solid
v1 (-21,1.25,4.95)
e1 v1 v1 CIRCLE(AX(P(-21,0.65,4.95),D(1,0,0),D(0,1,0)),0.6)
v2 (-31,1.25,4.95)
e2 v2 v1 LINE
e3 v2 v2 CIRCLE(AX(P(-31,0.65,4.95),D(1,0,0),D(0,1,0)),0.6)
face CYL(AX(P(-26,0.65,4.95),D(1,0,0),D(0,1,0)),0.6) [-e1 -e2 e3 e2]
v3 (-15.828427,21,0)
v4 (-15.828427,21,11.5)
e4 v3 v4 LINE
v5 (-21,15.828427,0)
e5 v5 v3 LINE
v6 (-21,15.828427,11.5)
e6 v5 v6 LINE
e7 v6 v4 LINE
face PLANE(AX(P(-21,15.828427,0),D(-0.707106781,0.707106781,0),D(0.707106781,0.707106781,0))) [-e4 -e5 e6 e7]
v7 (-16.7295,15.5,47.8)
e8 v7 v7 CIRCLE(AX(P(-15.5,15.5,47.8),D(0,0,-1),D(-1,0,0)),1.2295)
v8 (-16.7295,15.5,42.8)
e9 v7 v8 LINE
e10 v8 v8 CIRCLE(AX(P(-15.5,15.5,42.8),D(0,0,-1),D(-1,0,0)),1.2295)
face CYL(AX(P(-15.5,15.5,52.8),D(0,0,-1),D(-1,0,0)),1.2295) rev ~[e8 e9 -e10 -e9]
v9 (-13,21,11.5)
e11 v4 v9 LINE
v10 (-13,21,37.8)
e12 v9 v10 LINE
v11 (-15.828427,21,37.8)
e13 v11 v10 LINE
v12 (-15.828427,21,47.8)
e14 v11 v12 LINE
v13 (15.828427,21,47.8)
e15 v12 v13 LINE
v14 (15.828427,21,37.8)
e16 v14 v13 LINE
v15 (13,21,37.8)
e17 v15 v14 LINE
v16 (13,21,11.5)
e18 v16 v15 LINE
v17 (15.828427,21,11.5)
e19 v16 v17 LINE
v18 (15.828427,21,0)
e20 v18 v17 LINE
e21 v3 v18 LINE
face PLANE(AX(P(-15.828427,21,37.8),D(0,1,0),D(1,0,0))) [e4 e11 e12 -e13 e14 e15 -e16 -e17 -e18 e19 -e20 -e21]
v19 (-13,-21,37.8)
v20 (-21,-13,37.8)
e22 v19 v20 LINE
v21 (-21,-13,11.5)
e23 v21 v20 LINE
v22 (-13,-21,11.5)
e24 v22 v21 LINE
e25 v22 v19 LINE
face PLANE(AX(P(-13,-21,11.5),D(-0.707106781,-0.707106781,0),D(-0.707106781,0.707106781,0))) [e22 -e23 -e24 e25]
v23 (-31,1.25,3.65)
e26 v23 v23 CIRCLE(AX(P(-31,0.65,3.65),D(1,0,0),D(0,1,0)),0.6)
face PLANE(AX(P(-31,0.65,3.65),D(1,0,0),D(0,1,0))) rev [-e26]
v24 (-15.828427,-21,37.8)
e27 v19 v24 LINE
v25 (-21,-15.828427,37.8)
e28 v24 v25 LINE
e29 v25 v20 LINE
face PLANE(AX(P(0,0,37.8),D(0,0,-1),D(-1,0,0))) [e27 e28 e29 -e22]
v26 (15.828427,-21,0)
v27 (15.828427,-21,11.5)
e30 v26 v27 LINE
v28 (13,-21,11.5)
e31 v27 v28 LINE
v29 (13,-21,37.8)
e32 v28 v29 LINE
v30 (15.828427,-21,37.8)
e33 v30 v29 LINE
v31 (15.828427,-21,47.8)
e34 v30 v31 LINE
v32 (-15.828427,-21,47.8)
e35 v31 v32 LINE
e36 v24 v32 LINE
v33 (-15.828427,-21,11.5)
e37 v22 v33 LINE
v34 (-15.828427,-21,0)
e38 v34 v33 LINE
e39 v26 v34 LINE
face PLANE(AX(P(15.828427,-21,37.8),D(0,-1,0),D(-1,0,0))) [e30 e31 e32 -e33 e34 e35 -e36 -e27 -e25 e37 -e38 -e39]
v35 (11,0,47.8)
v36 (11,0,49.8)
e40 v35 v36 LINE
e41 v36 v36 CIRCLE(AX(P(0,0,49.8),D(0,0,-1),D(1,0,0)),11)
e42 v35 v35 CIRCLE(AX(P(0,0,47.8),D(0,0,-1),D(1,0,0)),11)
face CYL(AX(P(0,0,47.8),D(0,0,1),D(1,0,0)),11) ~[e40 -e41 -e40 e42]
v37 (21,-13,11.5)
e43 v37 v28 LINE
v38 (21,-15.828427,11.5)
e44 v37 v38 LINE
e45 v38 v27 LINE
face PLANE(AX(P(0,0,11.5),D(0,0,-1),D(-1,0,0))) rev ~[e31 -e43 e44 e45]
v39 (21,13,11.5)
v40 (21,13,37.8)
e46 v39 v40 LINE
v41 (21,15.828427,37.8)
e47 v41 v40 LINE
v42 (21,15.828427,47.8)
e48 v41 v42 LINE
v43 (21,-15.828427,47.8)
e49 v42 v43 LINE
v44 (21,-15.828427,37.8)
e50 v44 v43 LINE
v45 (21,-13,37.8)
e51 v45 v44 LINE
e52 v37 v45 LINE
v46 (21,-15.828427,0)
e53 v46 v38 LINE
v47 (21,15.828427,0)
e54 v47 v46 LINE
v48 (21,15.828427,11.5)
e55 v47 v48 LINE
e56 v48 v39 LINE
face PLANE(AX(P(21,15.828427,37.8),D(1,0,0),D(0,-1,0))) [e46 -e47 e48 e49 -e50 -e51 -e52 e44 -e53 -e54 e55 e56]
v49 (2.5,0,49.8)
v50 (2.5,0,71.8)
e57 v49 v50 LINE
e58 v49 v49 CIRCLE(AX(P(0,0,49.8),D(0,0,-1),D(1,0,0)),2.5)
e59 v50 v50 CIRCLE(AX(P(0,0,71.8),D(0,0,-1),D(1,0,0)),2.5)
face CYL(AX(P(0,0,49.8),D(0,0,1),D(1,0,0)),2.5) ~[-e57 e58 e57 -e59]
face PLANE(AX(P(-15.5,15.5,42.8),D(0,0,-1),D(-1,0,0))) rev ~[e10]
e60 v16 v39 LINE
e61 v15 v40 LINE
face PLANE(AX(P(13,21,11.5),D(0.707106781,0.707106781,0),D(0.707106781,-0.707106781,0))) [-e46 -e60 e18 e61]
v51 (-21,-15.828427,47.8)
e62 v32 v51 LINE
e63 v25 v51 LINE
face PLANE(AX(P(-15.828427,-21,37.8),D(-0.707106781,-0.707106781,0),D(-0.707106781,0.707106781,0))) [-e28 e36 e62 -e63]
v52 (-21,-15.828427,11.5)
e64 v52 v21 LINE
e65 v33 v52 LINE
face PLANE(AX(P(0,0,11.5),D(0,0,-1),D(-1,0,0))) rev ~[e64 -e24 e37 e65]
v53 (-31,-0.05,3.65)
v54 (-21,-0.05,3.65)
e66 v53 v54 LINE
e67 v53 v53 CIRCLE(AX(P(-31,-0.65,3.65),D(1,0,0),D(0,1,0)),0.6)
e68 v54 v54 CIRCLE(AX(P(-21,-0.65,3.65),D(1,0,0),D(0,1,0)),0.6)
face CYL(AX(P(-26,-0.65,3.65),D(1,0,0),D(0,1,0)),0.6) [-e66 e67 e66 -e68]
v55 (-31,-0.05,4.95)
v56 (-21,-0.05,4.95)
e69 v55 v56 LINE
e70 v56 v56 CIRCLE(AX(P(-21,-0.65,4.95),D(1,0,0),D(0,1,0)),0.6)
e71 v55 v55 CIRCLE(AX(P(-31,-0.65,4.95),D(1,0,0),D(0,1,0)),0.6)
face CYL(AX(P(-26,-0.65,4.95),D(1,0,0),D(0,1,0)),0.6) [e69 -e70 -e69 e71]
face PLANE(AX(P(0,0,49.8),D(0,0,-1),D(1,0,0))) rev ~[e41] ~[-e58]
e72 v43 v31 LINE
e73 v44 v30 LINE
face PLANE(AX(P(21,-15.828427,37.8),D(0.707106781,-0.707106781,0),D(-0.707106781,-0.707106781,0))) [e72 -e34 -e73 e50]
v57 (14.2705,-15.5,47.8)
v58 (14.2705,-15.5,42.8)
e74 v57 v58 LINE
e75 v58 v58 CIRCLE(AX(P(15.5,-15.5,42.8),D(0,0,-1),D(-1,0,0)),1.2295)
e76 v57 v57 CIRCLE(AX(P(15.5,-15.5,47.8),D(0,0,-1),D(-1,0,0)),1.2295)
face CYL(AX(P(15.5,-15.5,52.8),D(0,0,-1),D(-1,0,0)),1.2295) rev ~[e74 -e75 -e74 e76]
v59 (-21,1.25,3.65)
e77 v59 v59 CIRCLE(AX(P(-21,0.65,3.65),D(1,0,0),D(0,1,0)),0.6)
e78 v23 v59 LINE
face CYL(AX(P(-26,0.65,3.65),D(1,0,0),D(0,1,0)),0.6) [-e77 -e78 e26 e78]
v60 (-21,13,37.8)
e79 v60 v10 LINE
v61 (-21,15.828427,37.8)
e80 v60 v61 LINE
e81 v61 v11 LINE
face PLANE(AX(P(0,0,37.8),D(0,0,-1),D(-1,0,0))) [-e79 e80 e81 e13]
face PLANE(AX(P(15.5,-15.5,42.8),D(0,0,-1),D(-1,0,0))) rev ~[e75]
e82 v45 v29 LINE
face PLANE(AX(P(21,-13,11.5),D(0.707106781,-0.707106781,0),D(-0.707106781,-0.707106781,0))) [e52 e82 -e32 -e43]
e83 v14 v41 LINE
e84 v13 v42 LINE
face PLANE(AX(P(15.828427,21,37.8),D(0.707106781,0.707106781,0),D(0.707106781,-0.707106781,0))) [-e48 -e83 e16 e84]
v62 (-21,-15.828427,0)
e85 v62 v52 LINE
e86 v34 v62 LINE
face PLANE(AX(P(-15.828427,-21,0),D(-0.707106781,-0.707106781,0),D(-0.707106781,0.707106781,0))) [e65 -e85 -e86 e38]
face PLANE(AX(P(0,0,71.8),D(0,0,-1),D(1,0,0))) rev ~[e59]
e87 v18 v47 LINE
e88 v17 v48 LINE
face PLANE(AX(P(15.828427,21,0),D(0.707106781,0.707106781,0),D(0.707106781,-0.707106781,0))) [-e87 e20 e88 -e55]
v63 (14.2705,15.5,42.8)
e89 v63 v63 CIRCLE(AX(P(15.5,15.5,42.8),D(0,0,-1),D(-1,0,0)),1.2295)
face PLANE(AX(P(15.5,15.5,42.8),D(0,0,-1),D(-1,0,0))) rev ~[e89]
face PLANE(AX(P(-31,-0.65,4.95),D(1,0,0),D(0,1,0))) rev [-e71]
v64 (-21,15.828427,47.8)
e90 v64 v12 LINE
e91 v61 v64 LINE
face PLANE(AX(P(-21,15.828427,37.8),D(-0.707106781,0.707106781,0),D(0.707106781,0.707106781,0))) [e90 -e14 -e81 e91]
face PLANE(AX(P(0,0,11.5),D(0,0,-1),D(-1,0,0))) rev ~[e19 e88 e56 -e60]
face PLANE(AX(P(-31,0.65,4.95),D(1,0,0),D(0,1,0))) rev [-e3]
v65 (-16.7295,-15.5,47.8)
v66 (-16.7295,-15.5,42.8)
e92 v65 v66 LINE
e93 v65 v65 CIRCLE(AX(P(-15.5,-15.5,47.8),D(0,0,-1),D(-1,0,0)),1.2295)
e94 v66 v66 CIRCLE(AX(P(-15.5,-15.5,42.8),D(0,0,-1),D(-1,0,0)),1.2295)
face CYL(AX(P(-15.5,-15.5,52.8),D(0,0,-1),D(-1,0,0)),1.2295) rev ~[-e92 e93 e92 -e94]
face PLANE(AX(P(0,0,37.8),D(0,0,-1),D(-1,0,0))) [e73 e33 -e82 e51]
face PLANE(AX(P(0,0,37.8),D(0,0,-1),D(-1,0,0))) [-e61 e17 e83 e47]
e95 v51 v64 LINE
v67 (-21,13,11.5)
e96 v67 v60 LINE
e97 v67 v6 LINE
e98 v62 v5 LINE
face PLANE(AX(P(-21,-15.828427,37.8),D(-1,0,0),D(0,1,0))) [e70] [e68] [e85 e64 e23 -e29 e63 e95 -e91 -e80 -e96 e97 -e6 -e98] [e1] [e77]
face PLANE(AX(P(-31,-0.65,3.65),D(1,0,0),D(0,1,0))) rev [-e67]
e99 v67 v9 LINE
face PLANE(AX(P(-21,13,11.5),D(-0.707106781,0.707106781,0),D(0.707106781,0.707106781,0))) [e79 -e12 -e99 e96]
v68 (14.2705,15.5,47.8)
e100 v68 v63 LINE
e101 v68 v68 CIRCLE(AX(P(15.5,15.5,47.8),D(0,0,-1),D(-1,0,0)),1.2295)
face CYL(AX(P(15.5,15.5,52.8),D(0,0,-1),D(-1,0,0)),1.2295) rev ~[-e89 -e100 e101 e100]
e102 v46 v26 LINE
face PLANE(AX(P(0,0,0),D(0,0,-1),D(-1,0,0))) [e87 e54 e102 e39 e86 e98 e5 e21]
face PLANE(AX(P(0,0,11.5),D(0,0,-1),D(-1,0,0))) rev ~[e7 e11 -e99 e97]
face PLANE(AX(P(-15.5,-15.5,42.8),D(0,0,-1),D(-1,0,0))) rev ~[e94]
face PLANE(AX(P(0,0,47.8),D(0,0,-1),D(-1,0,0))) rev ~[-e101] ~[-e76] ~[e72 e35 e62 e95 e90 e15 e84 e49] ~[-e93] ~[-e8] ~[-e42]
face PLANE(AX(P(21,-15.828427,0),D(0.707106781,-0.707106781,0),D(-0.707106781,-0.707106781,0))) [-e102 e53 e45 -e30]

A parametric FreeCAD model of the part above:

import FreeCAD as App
import Part
import Sketcher
from FreeCAD import Vector


def add_polygon(sketch, points):
    """Adds a closed chain of lines whose ends are joined by coincident constraints."""
    first, n = sketch.GeometryCount, len(points)
    for a, b in zip(points, points[1:] + points[:1]):
        sketch.addGeometry(Part.LineSegment(App.Vector(*a, 0), App.Vector(*b, 0)), False)
    for i in range(n):
        sketch.addConstraint(Sketcher.Constraint("Coincident", first + i, 2, first + (i + 1) % n, 1))

doc = App.newDocument("Part")
body = doc.addObject("PartDesign::Body", "Body")

# Sketch on XY plane
sketch1 = body.newObject("Sketcher::SketchObject", "Sketch")
sketch1.AttachmentSupport = (doc.getObject("XY_Plane"), [""])
sketch1.MapMode = "FlatFace"
add_polygon(sketch1, [(16, 21), (21, 16), (21, -16), (16, -21), (-16, -21), (-21, -16), (-21, 16), (-16, 21)])  # lines 0-7
sketch1.addConstraint([
    Sketcher.Constraint("Vertical", 1),
    Sketcher.Constraint("Horizontal", 3),
    Sketcher.Constraint("Vertical", 5),
    Sketcher.Constraint("Horizontal", 7),
    Sketcher.Constraint("Symmetric", 0, 2, 4, 2, -1, 1),
    Sketcher.Constraint("Symmetric", 2, 2, 6, 2, -1, 1),
    Sketcher.Constraint("Perpendicular", 0, 2),
    Sketcher.Constraint("Perpendicular", 2, 4),
    Sketcher.Constraint("Perpendicular", 4, 6),
    Sketcher.Constraint("Horizontal", 1, 2, 4, 2),
    Sketcher.Constraint("Vertical", 3, 2, 6, 2),
    Sketcher.Constraint("Equal", 7, 1),
    Sketcher.Constraint("DistanceX", -1, 1, 0, 2, 21.0),
    Sketcher.Constraint("Distance", 0, 7.313708),
])
pad1 = body.newObject("PartDesign::Pad", "Pad")
pad1.Profile = sketch1
pad1.Length = 11.5

# Sketch on XY plane
sketch2 = body.newObject("Sketcher::SketchObject", "Sketch001")
sketch2.AttachmentSupport = (doc.getObject("XY_Plane"), [""])
sketch2.MapMode = "FlatFace"
sketch2.AttachmentOffset = App.Placement(Vector(0, 0, 11.5), App.Rotation())
add_polygon(sketch2, [(-13, -21), (13, -21), (21, -13), (21, 13), (13, 21), (-13, 21), (-21, 13), (-21, -13)])  # lines 0-7
sketch2.addConstraint([
    Sketcher.Constraint("Horizontal", 0),
    Sketcher.Constraint("Vertical", 2),
    Sketcher.Constraint("Horizontal", 4),
    Sketcher.Constraint("Vertical", 6),
    Sketcher.Constraint("Symmetric", 0, 2, 4, 2, -1, 1),
    Sketcher.Constraint("Symmetric", 1, 2, 5, 2, -1, 1),
    Sketcher.Constraint("Perpendicular", 1, 3),
    Sketcher.Constraint("Perpendicular", 5, 7),
    Sketcher.Constraint("Horizontal", 2, 2, 5, 2),
    Sketcher.Constraint("Horizontal", 1, 2, 6, 2),
    Sketcher.Constraint("Vertical", 0, 2, 3, 2),
    Sketcher.Constraint("Equal", 4, 2),
    Sketcher.Constraint("DistanceX", 0, 1, 0, 2, 26.0),
    Sketcher.Constraint("DistanceY", 0, 2, -1, 1, 21.0),
])
pad2 = body.newObject("PartDesign::Pad", "Pad001")
pad2.Profile = sketch2
pad2.Length = 26.3

# Sketch on XY plane
sketch3 = body.newObject("Sketcher::SketchObject", "Sketch002")
sketch3.AttachmentSupport = (doc.getObject("XY_Plane"), [""])
sketch3.MapMode = "FlatFace"
sketch3.AttachmentOffset = App.Placement(Vector(0, 0, 37.8), App.Rotation())
add_polygon(sketch3, [(21, 16), (16, 21), (-16, 21), (-21, 16), (-21, -16), (-16, -21), (16, -21), (21, -16)])  # lines 0-7
sketch3.addConstraint([
    Sketcher.Constraint("Horizontal", 1),
    Sketcher.Constraint("Vertical", 3),
    Sketcher.Constraint("Horizontal", 5),
    Sketcher.Constraint("Vertical", 7),
    Sketcher.Constraint("Symmetric", 0, 2, 4, 2, -1, 1),
    Sketcher.Constraint("Symmetric", 2, 2, 6, 2, -1, 1),
    Sketcher.Constraint("Perpendicular", 0, 2),
    Sketcher.Constraint("Perpendicular", 2, 4),
    Sketcher.Constraint("Perpendicular", 4, 6),
    Sketcher.Constraint("Horizontal", 3, 2, 6, 2),
    Sketcher.Constraint("Vertical", 1, 2, 4, 2),
    Sketcher.Constraint("Equal", 5, 3),
    Sketcher.Constraint("DistanceY", -1, 1, 0, 2, 21.0),
    Sketcher.Constraint("Distance", 0, 7.313708),
])
pad3 = body.newObject("PartDesign::Pad", "Pad002")
pad3.Profile = sketch3
pad3.Length = 10

# Sketch on XY plane
sketch4 = body.newObject("Sketcher::SketchObject", "Sketch003")
sketch4.AttachmentSupport = (doc.getObject("XY_Plane"), [""])
sketch4.MapMode = "FlatFace"
sketch4.AttachmentOffset = App.Placement(Vector(0, 0, 3.65), App.Rotation())
add_polygon(sketch4, [(-31, 1.2), (-31, 0.7), (-21, 0.7), (-21, 1.2)])  # lines 0-3
sketch4.addGeometry(Part.LineSegment(Vector(-31, 0.7, 0), Vector(-21, 0.7, 0)), True)  # axis
sketch4.addConstraint([
    Sketcher.Constraint("Vertical", 0),
    Sketcher.Constraint("Horizontal", 1),
    Sketcher.Constraint("Vertical", 2),
    Sketcher.Constraint("Horizontal", 3),
    Sketcher.Constraint("Horizontal", 4),
    Sketcher.Constraint("Coincident", 4, 1, 0, 2),
    Sketcher.Constraint("Vertical", 2, 2, 4, 2),
    Sketcher.Constraint("DistanceX", 1, 1, 1, 2, 10.0),
    Sketcher.Constraint("DistanceY", 0, 2, 0, 1, 0.6),
    Sketcher.Constraint("DistanceX", 0, 2, -1, 1, 31.0),
    Sketcher.Constraint("DistanceY", -1, 1, 0, 2, 0.65),
])
revolution = body.newObject("PartDesign::Revolution", "Revolution")
revolution.Profile = sketch4
revolution.ReferenceAxis = (sketch4, ["Axis0"])
revolution.Angle = 360

# Sketch on XY plane
sketch5 = body.newObject("Sketcher::SketchObject", "Sketch004")
sketch5.AttachmentSupport = (doc.getObject("XY_Plane"), [""])
sketch5.MapMode = "FlatFace"
sketch5.AttachmentOffset = App.Placement(Vector(0, 0, 3.65), App.Rotation())
add_polygon(sketch5, [(-31, -0.1), (-31, -0.7), (-21, -0.7), (-21, -0.1)])  # lines 0-3
sketch5.addGeometry(Part.LineSegment(Vector(-31, -0.7, 0), Vector(-21, -0.7, 0)), True)  # axis
sketch5.addConstraint([
    Sketcher.Constraint("Vertical", 0),
    Sketcher.Constraint("Horizontal", 1),
    Sketcher.Constraint("Vertical", 2),
    Sketcher.Constraint("Horizontal", 3),
    Sketcher.Constraint("Horizontal", 4),
    Sketcher.Constraint("Coincident", 4, 1, 0, 2),
    Sketcher.Constraint("Vertical", 2, 2, 4, 2),
    Sketcher.Constraint("DistanceX", 1, 1, 1, 2, 10.0),
    Sketcher.Constraint("DistanceY", 0, 2, 0, 1, 0.6),
    Sketcher.Constraint("DistanceX", 0, 2, -1, 1, 31.0),
    Sketcher.Constraint("DistanceY", 0, 2, -1, 1, 0.65),
])
revolution2 = body.newObject("PartDesign::Revolution", "Revolution001")
revolution2.Profile = sketch5
revolution2.ReferenceAxis = (sketch5, ["Axis0"])
revolution2.Angle = 360

# Sketch on XY plane
sketch6 = body.newObject("Sketcher::SketchObject", "Sketch005")
sketch6.AttachmentSupport = (doc.getObject("XY_Plane"), [""])
sketch6.MapMode = "FlatFace"
sketch6.AttachmentOffset = App.Placement(Vector(0, 0, 4.95), App.Rotation())
add_polygon(sketch6, [(-31, -0.1), (-31, -0.7), (-21, -0.7), (-21, -0.1)])  # lines 0-3
sketch6.addGeometry(Part.LineSegment(Vector(-31, -0.7, 0), Vector(-21, -0.7, 0)), True)  # axis
sketch6.addConstraint([
    Sketcher.Constraint("Vertical", 0),
    Sketcher.Constraint("Horizontal", 1),
    Sketcher.Constraint("Vertical", 2),
    Sketcher.Constraint("Horizontal", 3),
    Sketcher.Constraint("Horizontal", 4),
    Sketcher.Constraint("Coincident", 4, 1, 0, 2),
    Sketcher.Constraint("Vertical", 2, 2, 4, 2),
    Sketcher.Constraint("DistanceX", 1, 1, 1, 2, 10.0),
    Sketcher.Constraint("DistanceY", 0, 2, 0, 1, 0.6),
    Sketcher.Constraint("DistanceX", 0, 2, -1, 1, 31.0),
    Sketcher.Constraint("DistanceY", 0, 2, -1, 1, 0.65),
])
revolution3 = body.newObject("PartDesign::Revolution", "Revolution002")
revolution3.Profile = sketch6
revolution3.ReferenceAxis = (sketch6, ["Axis0"])
revolution3.Angle = 360

# Sketch on XY plane
sketch7 = body.newObject("Sketcher::SketchObject", "Sketch006")
sketch7.AttachmentSupport = (doc.getObject("XY_Plane"), [""])
sketch7.MapMode = "FlatFace"
sketch7.AttachmentOffset = App.Placement(Vector(0, 0, 4.95), App.Rotation())
add_polygon(sketch7, [(-31, 1.2), (-31, 0.7), (-21, 0.7), (-21, 1.2)])  # lines 0-3
sketch7.addGeometry(Part.LineSegment(Vector(-31, 0.7, 0), Vector(-21, 0.7, 0)), True)  # axis
sketch7.addConstraint([
    Sketcher.Constraint("Vertical", 0),
    Sketcher.Constraint("Horizontal", 1),
    Sketcher.Constraint("Vertical", 2),
    Sketcher.Constraint("Horizontal", 3),
    Sketcher.Constraint("Horizontal", 4),
    Sketcher.Constraint("Coincident", 4, 1, 0, 2),
    Sketcher.Constraint("Vertical", 2, 2, 4, 2),
    Sketcher.Constraint("DistanceX", 1, 1, 1, 2, 10.0),
    Sketcher.Constraint("DistanceY", 0, 2, 0, 1, 0.6),
    Sketcher.Constraint("DistanceX", 0, 2, -1, 1, 31.0),
    Sketcher.Constraint("DistanceY", -1, 1, 0, 2, 0.65),
])
revolution4 = body.newObject("PartDesign::Revolution", "Revolution003")
revolution4.Profile = sketch7
revolution4.ReferenceAxis = (sketch7, ["Axis0"])
revolution4.Angle = 360

# Sketch on XZ plane
sketch8 = body.newObject("Sketcher::SketchObject", "Sketch007")
sketch8.AttachmentSupport = (doc.getObject("XZ_Plane"), [""])
sketch8.MapMode = "FlatFace"
add_polygon(sketch8, [(2.5, 71.8), (0, 71.8), (0, 47.8), (11, 47.8), (11, 49.8), (2.5, 49.8)])  # lines 0-5
sketch8.addConstraint([
    Sketcher.Constraint("Horizontal", 0),
    Sketcher.Constraint("Vertical", 1),
    Sketcher.Constraint("Horizontal", 2),
    Sketcher.Constraint("Vertical", 3),
    Sketcher.Constraint("Horizontal", 4),
    Sketcher.Constraint("Vertical", 5),
    Sketcher.Constraint("PointOnObject", 0, 2, -2),
    Sketcher.Constraint("DistanceX", 2, 1, 2, 2, 11.0),
    Sketcher.Constraint("DistanceY", 1, 2, 1, 1, 24.0),
    Sketcher.Constraint("DistanceY", 3, 1, 3, 2, 2.0),
    Sketcher.Constraint("DistanceX", 0, 2, 0, 1, 2.5),
    Sketcher.Constraint("DistanceY", -1, 1, 0, 2, 71.8),
])
revolution5 = body.newObject("PartDesign::Revolution", "Revolution004")
revolution5.Profile = sketch8
revolution5.ReferenceAxis = (sketch8, ["V_Axis"])
revolution5.Angle = 360

# Sketch on XY plane
sketch9 = body.newObject("Sketcher::SketchObject", "Sketch008")
sketch9.AttachmentSupport = (doc.getObject("XY_Plane"), [""])
sketch9.MapMode = "FlatFace"
sketch9.AttachmentOffset = App.Placement(Vector(0, 0, 47.8), App.Rotation())
sketch9.addGeometry(Part.Circle(Vector(-15.5, 15.5, 0), Vector(0, 0, 1), 1.2), False)
sketch9.addConstraint([
    Sketcher.Constraint("Diameter", 0, 2.459),
    Sketcher.Constraint("DistanceX", 0, 3, -1, 1, 15.5),
    Sketcher.Constraint("DistanceY", -1, 1, 0, 3, 15.5),
])
doc.recompute()
hole = body.newObject("PartDesign::Hole", "Hole")
hole.Profile = sketch9
hole.ThreadType = "None"
hole.Diameter = 2.459
hole.DepthType = "Dimension"
hole.Depth = 5
hole.DrillPoint = "Flat"

# Sketch on XY plane
sketch10 = body.newObject("Sketcher::SketchObject", "Sketch009")
sketch10.AttachmentSupport = (doc.getObject("XY_Plane"), [""])
sketch10.MapMode = "FlatFace"
sketch10.AttachmentOffset = App.Placement(Vector(0, 0, 47.8), App.Rotation())
sketch10.addGeometry(Part.Circle(Vector(-15.5, -15.5, 0), Vector(0, 0, 1), 1.2), False)
sketch10.addConstraint([
    Sketcher.Constraint("Diameter", 0, 2.459),
    Sketcher.Constraint("DistanceX", 0, 3, -1, 1, 15.5),
    Sketcher.Constraint("DistanceY", 0, 3, -1, 1, 15.5),
])
doc.recompute()
hole2 = body.newObject("PartDesign::Hole", "Hole001")
hole2.Profile = sketch10
hole2.ThreadType = "None"
hole2.Diameter = 2.459
hole2.DepthType = "Dimension"
hole2.Depth = 5
hole2.DrillPoint = "Flat"

# Sketch on XY plane
sketch11 = body.newObject("Sketcher::SketchObject", "Sketch010")
sketch11.AttachmentSupport = (doc.getObject("XY_Plane"), [""])
sketch11.MapMode = "FlatFace"
sketch11.AttachmentOffset = App.Placement(Vector(0, 0, 47.8), App.Rotation())
sketch11.addGeometry(Part.Circle(Vector(15.5, 15.5, 0), Vector(0, 0, 1), 1.2), False)
sketch11.addConstraint([
    Sketcher.Constraint("Diameter", 0, 2.459),
    Sketcher.Constraint("DistanceX", -1, 1, 0, 3, 15.5),
    Sketcher.Constraint("DistanceY", -1, 1, 0, 3, 15.5),
])
doc.recompute()
hole3 = body.newObject("PartDesign::Hole", "Hole002")
hole3.Profile = sketch11
hole3.ThreadType = "None"
hole3.Diameter = 2.459
hole3.DepthType = "Dimension"
hole3.Depth = 5
hole3.DrillPoint = "Flat"

# Sketch on XY plane
sketch12 = body.newObject("Sketcher::SketchObject", "Sketch011")
sketch12.AttachmentSupport = (doc.getObject("XY_Plane"), [""])
sketch12.MapMode = "FlatFace"
sketch12.AttachmentOffset = App.Placement(Vector(0, 0, 47.8), App.Rotation())
sketch12.addGeometry(Part.Circle(Vector(15.5, -15.5, 0), Vector(0, 0, 1), 1.2), False)
sketch12.addConstraint([
    Sketcher.Constraint("Diameter", 0, 2.459),
    Sketcher.Constraint("DistanceX", -1, 1, 0, 3, 15.5),
    Sketcher.Constraint("DistanceY", 0, 3, -1, 1, 15.5),
])
doc.recompute()
hole4 = body.newObject("PartDesign::Hole", "Hole003")
hole4.Profile = sketch12
hole4.ThreadType = "None"
hole4.Diameter = 2.459
hole4.DepthType = "Dimension"
hole4.Depth = 5
hole4.DrillPoint = "Flat"

doc.recompute()
